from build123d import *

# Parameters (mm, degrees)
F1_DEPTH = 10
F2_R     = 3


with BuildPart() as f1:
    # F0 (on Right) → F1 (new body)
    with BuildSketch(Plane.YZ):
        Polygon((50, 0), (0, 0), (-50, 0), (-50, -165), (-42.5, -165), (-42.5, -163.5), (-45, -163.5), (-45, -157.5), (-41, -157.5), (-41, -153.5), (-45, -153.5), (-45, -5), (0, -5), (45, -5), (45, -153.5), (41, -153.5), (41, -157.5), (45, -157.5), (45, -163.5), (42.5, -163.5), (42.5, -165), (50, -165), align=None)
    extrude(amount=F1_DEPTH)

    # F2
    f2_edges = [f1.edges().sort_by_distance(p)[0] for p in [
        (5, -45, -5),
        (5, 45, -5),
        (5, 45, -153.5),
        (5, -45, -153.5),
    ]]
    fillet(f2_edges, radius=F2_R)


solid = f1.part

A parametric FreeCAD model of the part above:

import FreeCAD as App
import Part
import Sketcher

V = App.Vector
Q = App.Units.Quantity


def edges_at(feature, points):
    """Names of the edges that pass closest to the given points."""
    edges = feature.Shape.Edges
    near = lambda p: min(range(len(edges)), key=lambda i: edges[i].distToShape(Part.Vertex(*p))[0])
    return sorted({f"Edge{near(p) + 1}" for p in points})


def add_polygon(sketch, points):
    """Adds a closed chain of lines whose ends are joined by coincident constraints."""
    first, n = sketch.GeometryCount, len(points)
    for a, b in zip(points, points[1:] + points[:1]):
        sketch.addGeometry(Part.LineSegment(App.Vector(*a, 0), App.Vector(*b, 0)), False)
    for i in range(n):
        sketch.addConstraint(Sketcher.Constraint("Coincident", first + i, 2, first + (i + 1) % n, 1))

doc = App.newDocument("Part")
params = doc.addObject("Spreadsheet::Sheet", "Params")
for row, (alias, value) in enumerate([
    ("sketch1_width", "100 mm"),
    ("sketch1_width2", "4 mm"),
    ("sketch1_width3", "90 mm"),
    ("sketch1_height", "165 mm"),
    ("sketch1_height2", "6 mm"),
    ("pad1_length", "10 mm"),
    ("fillet_radius", "3 mm"),
], start=1):
    params.set(f"A{row}", alias)
    params.set(f"B{row}", "=" + value)
    params.setAlias(f"B{row}", alias)

body = doc.addObject("PartDesign::Body", "Body")

# Sketch on YZ plane
sketch1 = body.newObject("Sketcher::SketchObject", "Sketch")
sketch1.AttachmentSupport = (doc.getObject("YZ_Plane"), [""])
sketch1.MapMode = "FlatFace"
add_polygon(sketch1, [(50, 0), (-50, 0), (-50, -165), (-42.5, -165), (-42.5, -163.5), (-45, -163.5), (-45, -157.5), (-41, -157.5), (-41, -153.5), (-45, -153.5), (-45, -5), (45, -5), (45, -153.5), (41, -153.5), (41, -157.5), (45, -157.5), (45, -163.5), (42.5, -163.5), (42.5, -165), (50, -165)])  # lines 0-19
sketch1.addConstraint([
    Sketcher.Constraint("Horizontal", 0),
    Sketcher.Constraint("Vertical", 1),
    Sketcher.Constraint("Horizontal", 2),
    Sketcher.Constraint("Vertical", 3),
    Sketcher.Constraint("Horizontal", 4),
    Sketcher.Constraint("Vertical", 5),
    Sketcher.Constraint("Horizontal", 6),
    Sketcher.Constraint("Vertical", 7),
    Sketcher.Constraint("Horizontal", 8),
    Sketcher.Constraint("Vertical", 9),
    Sketcher.Constraint("Horizontal", 10),
    Sketcher.Constraint("Vertical", 11),
    Sketcher.Constraint("Horizontal", 12),
    Sketcher.Constraint("Vertical", 13),
    Sketcher.Constraint("Horizontal", 14),
    Sketcher.Constraint("Vertical", 15),
    Sketcher.Constraint("Horizontal", 16),
    Sketcher.Constraint("Vertical", 17),
    Sketcher.Constraint("Horizontal", 18),
    Sketcher.Constraint("Vertical", 19),
    Sketcher.Constraint("Symmetric", 0, 2, 19, 2, -1, 1),
    Sketcher.Constraint("Symmetric", 8, 2, 11, 2, -2),
    Sketcher.Constraint("Symmetric", 6, 2, 13, 2, -2),
    Sketcher.Constraint("Symmetric", 4, 2, 15, 2, -2),
    Sketcher.Constraint("Symmetric", 2, 2, 17, 2, -2),
    Sketcher.Constraint("Vertical", 5, 2, 8, 2),
    Sketcher.Constraint("Equal", 14, 7),
    Sketcher.Constraint("DistanceX", 0, 2, 0, 1, Q("100 mm")),
    Sketcher.Constraint("DistanceX", 6, 1, 6, 2, Q("4 mm")),
    Sketcher.Constraint("DistanceX", 10, 1, 10, 2, Q("90 mm")),
    Sketcher.Constraint("DistanceY", 1, 2, 1, 1, Q("165 mm")),
    Sketcher.Constraint("DistanceY", 5, 1, 5, 2, Q("6 mm")),
    Sketcher.Constraint("DistanceX", 2, 1, 2, 2, Q("7.5 mm")),
    Sketcher.Constraint("DistanceY", 3, 1, 3, 2, Q("1.5 mm")),
    Sketcher.Constraint("DistanceY", 9, 1, 9, 2, Q("148.5 mm")),
])
sketch1.setExpression("Constraints[47]", "Params.sketch1_width")
sketch1.setExpression("Constraints[48]", "Params.sketch1_width2")
sketch1.setExpression("Constraints[49]", "Params.sketch1_width3")
sketch1.setExpression("Constraints[50]", "Params.sketch1_height")
sketch1.setExpression("Constraints[51]", "Params.sketch1_height2")
pad1 = body.newObject("PartDesign::Pad", "Pad")
pad1.Profile = sketch1
pad1.setExpression("Length", "Params.pad1_length")
doc.recompute()

fillet = body.newObject("PartDesign::Fillet", "Fillet")
fillet.Base = (pad1, edges_at(pad1, [
    (5, -45, -5),
    (5, 45, -5),
    (5, 45, -153.5),
    (5, -45, -153.5),
]))
fillet.setExpression("Radius", "Params.fillet_radius")

doc.recompute()
